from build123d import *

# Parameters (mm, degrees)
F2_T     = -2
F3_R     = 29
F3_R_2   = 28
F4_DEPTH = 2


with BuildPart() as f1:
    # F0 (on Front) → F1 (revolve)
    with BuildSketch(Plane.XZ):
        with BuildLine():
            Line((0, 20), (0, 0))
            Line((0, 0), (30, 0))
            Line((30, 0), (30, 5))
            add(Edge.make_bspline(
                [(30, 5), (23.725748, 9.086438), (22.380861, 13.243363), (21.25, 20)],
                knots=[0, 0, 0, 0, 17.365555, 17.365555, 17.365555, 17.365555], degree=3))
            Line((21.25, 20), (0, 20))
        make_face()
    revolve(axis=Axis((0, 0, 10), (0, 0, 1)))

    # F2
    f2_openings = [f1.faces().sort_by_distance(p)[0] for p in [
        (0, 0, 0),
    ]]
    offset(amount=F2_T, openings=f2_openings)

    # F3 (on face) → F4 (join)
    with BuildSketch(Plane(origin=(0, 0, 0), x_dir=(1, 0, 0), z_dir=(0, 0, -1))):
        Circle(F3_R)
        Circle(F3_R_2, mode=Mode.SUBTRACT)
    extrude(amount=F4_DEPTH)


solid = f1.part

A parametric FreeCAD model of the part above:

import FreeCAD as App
import Part
import Sketcher


def faces_at(feature, points):
    """Names of the faces that lie closest to the given points."""
    faces = feature.Shape.Faces
    near = lambda p: min(range(len(faces)), key=lambda i: faces[i].distToShape(Part.Vertex(*p))[0])
    return sorted({f"Face{near(p) + 1}" for p in points})

doc = App.newDocument("Part")
body = doc.addObject("PartDesign::Body", "Body")

sketch1 = body.newObject("Sketcher::SketchObject", "Sketch")
sketch1.AttachmentSupport = (doc.getObject("XZ_Plane"), [""])
sketch1.MapMode = "FlatFace"
sketch1.addGeometry([
    Part.LineSegment(App.Vector(0, 20, 0), App.Vector(0, 0, 0)),
    Part.LineSegment(App.Vector(0, 0, 0), App.Vector(30, 0, 0)),
    Part.LineSegment(App.Vector(30, 0, 0), App.Vector(30, 5, 0)),
    Part.BSplineCurve([App.Vector(30, 5, 0), App.Vector(23.725748, 9.086438, 0), App.Vector(22.380861, 13.243363, 0), App.Vector(21.25, 20, 0)], [4, 4], [0, 17.365555], False, 3, [1, 1, 1, 1], False),
    Part.LineSegment(App.Vector(21.25, 20, 0), App.Vector(0, 20, 0)),
], False)
sketch1.addConstraint([
    Sketcher.Constraint("Block", 3),
    Sketcher.Constraint("Coincident", 0, 2, 1, 1),
    Sketcher.Constraint("Coincident", 1, 2, 2, 1),
    Sketcher.Constraint("Coincident", 2, 2, 3, 1),
    Sketcher.Constraint("Coincident", 3, 2, 4, 1),
    Sketcher.Constraint("Coincident", 4, 2, 0, 1),
    Sketcher.Constraint("Vertical", 0),
    Sketcher.Constraint("Horizontal", 1),
    Sketcher.Constraint("Vertical", 2),
    Sketcher.Constraint("Horizontal", 4),
    Sketcher.Constraint("Coincident", 0, 2, -1, 1),
])
revolution = body.newObject("PartDesign::Revolution", "Revolution")
revolution.Profile = sketch1
revolution.ReferenceAxis = (sketch1, ["V_Axis"])
revolution.Angle = 360
doc.recompute()

thickness = body.newObject("PartDesign::Thickness", "Thickness")
thickness.Base = (revolution, faces_at(revolution, [(0, 0, 0)]))
thickness.Value = 2
thickness.Reversed = True
thickness.Join = "Arc"

sketch2 = body.newObject("Sketcher::SketchObject", "Sketch001")
sketch2.AttachmentSupport = (doc.getObject("XY_Plane"), [""])
sketch2.MapMode = "FlatFace"
sketch2.addGeometry([
    Part.Circle(App.Vector(0, 0, 0), App.Vector(0, 0, 1), 29),
    Part.Circle(App.Vector(0, 0, 0), App.Vector(0, 0, 1), 28),
], False)
sketch2.addConstraint([
    Sketcher.Constraint("Coincident", 0, 3, -1, 1),
    Sketcher.Constraint("Coincident", 1, 3, -1, 1),
    Sketcher.Constraint("Diameter", 0, 58.0),
    Sketcher.Constraint("Diameter", 1, 56.0),
])
pad1 = body.newObject("PartDesign::Pad", "Pad")
pad1.Profile = sketch2
pad1.Length = 2
pad1.Reversed = True

doc.recompute()
